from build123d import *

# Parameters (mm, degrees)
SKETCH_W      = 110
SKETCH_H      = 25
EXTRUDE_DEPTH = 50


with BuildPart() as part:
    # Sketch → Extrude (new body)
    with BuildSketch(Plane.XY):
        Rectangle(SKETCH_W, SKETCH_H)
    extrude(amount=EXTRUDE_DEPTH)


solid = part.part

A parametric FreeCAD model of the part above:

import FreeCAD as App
import Part
import Sketcher
from FreeCAD import Vector


def add_polygon(sketch, points):
    """Adds a closed chain of lines whose ends are joined by coincident constraints."""
    first, n = sketch.GeometryCount, len(points)
    for a, b in zip(points, points[1:] + points[:1]):
        sketch.addGeometry(Part.LineSegment(App.Vector(*a, 0), App.Vector(*b, 0)), False)
    for i in range(n):
        sketch.addConstraint(Sketcher.Constraint("Coincident", first + i, 2, first + (i + 1) % n, 1))

doc = App.newDocument("Part")
body = doc.addObject("PartDesign::Body", "Body")

# Sketch on XY plane
sketch1 = body.newObject("Sketcher::SketchObject", "Sketch")
sketch1.AttachmentSupport = (doc.getObject("XY_Plane"), [""])
sketch1.MapMode = "FlatFace"
add_polygon(sketch1, [(-55, 12), (-55, -12), (55, -12), (55, 12)])  # lines 0-3
sketch1.addConstraint(Sketcher.Constraint("Vertical", 0))
sketch1.addConstraint(Sketcher.Constraint("Horizontal", 1))
sketch1.addConstraint(Sketcher.Constraint("Vertical", 2))
sketch1.addConstraint(Sketcher.Constraint("Horizontal", 3))
sketch1.addConstraint(Sketcher.Constraint("Symmetric", 0, 2, 2, 2, -1, 1))
sketch1.addConstraint(Sketcher.Constraint("DistanceX", 1, 1, 1, 2, 110.0))
sketch1.addConstraint(Sketcher.Constraint("DistanceY", 0, 2, 0, 1, 25.0))
pad1 = body.newObject("PartDesign::Pad", "Pad")
pad1.Profile = sketch1
pad1.Length = 50

doc.recompute()
